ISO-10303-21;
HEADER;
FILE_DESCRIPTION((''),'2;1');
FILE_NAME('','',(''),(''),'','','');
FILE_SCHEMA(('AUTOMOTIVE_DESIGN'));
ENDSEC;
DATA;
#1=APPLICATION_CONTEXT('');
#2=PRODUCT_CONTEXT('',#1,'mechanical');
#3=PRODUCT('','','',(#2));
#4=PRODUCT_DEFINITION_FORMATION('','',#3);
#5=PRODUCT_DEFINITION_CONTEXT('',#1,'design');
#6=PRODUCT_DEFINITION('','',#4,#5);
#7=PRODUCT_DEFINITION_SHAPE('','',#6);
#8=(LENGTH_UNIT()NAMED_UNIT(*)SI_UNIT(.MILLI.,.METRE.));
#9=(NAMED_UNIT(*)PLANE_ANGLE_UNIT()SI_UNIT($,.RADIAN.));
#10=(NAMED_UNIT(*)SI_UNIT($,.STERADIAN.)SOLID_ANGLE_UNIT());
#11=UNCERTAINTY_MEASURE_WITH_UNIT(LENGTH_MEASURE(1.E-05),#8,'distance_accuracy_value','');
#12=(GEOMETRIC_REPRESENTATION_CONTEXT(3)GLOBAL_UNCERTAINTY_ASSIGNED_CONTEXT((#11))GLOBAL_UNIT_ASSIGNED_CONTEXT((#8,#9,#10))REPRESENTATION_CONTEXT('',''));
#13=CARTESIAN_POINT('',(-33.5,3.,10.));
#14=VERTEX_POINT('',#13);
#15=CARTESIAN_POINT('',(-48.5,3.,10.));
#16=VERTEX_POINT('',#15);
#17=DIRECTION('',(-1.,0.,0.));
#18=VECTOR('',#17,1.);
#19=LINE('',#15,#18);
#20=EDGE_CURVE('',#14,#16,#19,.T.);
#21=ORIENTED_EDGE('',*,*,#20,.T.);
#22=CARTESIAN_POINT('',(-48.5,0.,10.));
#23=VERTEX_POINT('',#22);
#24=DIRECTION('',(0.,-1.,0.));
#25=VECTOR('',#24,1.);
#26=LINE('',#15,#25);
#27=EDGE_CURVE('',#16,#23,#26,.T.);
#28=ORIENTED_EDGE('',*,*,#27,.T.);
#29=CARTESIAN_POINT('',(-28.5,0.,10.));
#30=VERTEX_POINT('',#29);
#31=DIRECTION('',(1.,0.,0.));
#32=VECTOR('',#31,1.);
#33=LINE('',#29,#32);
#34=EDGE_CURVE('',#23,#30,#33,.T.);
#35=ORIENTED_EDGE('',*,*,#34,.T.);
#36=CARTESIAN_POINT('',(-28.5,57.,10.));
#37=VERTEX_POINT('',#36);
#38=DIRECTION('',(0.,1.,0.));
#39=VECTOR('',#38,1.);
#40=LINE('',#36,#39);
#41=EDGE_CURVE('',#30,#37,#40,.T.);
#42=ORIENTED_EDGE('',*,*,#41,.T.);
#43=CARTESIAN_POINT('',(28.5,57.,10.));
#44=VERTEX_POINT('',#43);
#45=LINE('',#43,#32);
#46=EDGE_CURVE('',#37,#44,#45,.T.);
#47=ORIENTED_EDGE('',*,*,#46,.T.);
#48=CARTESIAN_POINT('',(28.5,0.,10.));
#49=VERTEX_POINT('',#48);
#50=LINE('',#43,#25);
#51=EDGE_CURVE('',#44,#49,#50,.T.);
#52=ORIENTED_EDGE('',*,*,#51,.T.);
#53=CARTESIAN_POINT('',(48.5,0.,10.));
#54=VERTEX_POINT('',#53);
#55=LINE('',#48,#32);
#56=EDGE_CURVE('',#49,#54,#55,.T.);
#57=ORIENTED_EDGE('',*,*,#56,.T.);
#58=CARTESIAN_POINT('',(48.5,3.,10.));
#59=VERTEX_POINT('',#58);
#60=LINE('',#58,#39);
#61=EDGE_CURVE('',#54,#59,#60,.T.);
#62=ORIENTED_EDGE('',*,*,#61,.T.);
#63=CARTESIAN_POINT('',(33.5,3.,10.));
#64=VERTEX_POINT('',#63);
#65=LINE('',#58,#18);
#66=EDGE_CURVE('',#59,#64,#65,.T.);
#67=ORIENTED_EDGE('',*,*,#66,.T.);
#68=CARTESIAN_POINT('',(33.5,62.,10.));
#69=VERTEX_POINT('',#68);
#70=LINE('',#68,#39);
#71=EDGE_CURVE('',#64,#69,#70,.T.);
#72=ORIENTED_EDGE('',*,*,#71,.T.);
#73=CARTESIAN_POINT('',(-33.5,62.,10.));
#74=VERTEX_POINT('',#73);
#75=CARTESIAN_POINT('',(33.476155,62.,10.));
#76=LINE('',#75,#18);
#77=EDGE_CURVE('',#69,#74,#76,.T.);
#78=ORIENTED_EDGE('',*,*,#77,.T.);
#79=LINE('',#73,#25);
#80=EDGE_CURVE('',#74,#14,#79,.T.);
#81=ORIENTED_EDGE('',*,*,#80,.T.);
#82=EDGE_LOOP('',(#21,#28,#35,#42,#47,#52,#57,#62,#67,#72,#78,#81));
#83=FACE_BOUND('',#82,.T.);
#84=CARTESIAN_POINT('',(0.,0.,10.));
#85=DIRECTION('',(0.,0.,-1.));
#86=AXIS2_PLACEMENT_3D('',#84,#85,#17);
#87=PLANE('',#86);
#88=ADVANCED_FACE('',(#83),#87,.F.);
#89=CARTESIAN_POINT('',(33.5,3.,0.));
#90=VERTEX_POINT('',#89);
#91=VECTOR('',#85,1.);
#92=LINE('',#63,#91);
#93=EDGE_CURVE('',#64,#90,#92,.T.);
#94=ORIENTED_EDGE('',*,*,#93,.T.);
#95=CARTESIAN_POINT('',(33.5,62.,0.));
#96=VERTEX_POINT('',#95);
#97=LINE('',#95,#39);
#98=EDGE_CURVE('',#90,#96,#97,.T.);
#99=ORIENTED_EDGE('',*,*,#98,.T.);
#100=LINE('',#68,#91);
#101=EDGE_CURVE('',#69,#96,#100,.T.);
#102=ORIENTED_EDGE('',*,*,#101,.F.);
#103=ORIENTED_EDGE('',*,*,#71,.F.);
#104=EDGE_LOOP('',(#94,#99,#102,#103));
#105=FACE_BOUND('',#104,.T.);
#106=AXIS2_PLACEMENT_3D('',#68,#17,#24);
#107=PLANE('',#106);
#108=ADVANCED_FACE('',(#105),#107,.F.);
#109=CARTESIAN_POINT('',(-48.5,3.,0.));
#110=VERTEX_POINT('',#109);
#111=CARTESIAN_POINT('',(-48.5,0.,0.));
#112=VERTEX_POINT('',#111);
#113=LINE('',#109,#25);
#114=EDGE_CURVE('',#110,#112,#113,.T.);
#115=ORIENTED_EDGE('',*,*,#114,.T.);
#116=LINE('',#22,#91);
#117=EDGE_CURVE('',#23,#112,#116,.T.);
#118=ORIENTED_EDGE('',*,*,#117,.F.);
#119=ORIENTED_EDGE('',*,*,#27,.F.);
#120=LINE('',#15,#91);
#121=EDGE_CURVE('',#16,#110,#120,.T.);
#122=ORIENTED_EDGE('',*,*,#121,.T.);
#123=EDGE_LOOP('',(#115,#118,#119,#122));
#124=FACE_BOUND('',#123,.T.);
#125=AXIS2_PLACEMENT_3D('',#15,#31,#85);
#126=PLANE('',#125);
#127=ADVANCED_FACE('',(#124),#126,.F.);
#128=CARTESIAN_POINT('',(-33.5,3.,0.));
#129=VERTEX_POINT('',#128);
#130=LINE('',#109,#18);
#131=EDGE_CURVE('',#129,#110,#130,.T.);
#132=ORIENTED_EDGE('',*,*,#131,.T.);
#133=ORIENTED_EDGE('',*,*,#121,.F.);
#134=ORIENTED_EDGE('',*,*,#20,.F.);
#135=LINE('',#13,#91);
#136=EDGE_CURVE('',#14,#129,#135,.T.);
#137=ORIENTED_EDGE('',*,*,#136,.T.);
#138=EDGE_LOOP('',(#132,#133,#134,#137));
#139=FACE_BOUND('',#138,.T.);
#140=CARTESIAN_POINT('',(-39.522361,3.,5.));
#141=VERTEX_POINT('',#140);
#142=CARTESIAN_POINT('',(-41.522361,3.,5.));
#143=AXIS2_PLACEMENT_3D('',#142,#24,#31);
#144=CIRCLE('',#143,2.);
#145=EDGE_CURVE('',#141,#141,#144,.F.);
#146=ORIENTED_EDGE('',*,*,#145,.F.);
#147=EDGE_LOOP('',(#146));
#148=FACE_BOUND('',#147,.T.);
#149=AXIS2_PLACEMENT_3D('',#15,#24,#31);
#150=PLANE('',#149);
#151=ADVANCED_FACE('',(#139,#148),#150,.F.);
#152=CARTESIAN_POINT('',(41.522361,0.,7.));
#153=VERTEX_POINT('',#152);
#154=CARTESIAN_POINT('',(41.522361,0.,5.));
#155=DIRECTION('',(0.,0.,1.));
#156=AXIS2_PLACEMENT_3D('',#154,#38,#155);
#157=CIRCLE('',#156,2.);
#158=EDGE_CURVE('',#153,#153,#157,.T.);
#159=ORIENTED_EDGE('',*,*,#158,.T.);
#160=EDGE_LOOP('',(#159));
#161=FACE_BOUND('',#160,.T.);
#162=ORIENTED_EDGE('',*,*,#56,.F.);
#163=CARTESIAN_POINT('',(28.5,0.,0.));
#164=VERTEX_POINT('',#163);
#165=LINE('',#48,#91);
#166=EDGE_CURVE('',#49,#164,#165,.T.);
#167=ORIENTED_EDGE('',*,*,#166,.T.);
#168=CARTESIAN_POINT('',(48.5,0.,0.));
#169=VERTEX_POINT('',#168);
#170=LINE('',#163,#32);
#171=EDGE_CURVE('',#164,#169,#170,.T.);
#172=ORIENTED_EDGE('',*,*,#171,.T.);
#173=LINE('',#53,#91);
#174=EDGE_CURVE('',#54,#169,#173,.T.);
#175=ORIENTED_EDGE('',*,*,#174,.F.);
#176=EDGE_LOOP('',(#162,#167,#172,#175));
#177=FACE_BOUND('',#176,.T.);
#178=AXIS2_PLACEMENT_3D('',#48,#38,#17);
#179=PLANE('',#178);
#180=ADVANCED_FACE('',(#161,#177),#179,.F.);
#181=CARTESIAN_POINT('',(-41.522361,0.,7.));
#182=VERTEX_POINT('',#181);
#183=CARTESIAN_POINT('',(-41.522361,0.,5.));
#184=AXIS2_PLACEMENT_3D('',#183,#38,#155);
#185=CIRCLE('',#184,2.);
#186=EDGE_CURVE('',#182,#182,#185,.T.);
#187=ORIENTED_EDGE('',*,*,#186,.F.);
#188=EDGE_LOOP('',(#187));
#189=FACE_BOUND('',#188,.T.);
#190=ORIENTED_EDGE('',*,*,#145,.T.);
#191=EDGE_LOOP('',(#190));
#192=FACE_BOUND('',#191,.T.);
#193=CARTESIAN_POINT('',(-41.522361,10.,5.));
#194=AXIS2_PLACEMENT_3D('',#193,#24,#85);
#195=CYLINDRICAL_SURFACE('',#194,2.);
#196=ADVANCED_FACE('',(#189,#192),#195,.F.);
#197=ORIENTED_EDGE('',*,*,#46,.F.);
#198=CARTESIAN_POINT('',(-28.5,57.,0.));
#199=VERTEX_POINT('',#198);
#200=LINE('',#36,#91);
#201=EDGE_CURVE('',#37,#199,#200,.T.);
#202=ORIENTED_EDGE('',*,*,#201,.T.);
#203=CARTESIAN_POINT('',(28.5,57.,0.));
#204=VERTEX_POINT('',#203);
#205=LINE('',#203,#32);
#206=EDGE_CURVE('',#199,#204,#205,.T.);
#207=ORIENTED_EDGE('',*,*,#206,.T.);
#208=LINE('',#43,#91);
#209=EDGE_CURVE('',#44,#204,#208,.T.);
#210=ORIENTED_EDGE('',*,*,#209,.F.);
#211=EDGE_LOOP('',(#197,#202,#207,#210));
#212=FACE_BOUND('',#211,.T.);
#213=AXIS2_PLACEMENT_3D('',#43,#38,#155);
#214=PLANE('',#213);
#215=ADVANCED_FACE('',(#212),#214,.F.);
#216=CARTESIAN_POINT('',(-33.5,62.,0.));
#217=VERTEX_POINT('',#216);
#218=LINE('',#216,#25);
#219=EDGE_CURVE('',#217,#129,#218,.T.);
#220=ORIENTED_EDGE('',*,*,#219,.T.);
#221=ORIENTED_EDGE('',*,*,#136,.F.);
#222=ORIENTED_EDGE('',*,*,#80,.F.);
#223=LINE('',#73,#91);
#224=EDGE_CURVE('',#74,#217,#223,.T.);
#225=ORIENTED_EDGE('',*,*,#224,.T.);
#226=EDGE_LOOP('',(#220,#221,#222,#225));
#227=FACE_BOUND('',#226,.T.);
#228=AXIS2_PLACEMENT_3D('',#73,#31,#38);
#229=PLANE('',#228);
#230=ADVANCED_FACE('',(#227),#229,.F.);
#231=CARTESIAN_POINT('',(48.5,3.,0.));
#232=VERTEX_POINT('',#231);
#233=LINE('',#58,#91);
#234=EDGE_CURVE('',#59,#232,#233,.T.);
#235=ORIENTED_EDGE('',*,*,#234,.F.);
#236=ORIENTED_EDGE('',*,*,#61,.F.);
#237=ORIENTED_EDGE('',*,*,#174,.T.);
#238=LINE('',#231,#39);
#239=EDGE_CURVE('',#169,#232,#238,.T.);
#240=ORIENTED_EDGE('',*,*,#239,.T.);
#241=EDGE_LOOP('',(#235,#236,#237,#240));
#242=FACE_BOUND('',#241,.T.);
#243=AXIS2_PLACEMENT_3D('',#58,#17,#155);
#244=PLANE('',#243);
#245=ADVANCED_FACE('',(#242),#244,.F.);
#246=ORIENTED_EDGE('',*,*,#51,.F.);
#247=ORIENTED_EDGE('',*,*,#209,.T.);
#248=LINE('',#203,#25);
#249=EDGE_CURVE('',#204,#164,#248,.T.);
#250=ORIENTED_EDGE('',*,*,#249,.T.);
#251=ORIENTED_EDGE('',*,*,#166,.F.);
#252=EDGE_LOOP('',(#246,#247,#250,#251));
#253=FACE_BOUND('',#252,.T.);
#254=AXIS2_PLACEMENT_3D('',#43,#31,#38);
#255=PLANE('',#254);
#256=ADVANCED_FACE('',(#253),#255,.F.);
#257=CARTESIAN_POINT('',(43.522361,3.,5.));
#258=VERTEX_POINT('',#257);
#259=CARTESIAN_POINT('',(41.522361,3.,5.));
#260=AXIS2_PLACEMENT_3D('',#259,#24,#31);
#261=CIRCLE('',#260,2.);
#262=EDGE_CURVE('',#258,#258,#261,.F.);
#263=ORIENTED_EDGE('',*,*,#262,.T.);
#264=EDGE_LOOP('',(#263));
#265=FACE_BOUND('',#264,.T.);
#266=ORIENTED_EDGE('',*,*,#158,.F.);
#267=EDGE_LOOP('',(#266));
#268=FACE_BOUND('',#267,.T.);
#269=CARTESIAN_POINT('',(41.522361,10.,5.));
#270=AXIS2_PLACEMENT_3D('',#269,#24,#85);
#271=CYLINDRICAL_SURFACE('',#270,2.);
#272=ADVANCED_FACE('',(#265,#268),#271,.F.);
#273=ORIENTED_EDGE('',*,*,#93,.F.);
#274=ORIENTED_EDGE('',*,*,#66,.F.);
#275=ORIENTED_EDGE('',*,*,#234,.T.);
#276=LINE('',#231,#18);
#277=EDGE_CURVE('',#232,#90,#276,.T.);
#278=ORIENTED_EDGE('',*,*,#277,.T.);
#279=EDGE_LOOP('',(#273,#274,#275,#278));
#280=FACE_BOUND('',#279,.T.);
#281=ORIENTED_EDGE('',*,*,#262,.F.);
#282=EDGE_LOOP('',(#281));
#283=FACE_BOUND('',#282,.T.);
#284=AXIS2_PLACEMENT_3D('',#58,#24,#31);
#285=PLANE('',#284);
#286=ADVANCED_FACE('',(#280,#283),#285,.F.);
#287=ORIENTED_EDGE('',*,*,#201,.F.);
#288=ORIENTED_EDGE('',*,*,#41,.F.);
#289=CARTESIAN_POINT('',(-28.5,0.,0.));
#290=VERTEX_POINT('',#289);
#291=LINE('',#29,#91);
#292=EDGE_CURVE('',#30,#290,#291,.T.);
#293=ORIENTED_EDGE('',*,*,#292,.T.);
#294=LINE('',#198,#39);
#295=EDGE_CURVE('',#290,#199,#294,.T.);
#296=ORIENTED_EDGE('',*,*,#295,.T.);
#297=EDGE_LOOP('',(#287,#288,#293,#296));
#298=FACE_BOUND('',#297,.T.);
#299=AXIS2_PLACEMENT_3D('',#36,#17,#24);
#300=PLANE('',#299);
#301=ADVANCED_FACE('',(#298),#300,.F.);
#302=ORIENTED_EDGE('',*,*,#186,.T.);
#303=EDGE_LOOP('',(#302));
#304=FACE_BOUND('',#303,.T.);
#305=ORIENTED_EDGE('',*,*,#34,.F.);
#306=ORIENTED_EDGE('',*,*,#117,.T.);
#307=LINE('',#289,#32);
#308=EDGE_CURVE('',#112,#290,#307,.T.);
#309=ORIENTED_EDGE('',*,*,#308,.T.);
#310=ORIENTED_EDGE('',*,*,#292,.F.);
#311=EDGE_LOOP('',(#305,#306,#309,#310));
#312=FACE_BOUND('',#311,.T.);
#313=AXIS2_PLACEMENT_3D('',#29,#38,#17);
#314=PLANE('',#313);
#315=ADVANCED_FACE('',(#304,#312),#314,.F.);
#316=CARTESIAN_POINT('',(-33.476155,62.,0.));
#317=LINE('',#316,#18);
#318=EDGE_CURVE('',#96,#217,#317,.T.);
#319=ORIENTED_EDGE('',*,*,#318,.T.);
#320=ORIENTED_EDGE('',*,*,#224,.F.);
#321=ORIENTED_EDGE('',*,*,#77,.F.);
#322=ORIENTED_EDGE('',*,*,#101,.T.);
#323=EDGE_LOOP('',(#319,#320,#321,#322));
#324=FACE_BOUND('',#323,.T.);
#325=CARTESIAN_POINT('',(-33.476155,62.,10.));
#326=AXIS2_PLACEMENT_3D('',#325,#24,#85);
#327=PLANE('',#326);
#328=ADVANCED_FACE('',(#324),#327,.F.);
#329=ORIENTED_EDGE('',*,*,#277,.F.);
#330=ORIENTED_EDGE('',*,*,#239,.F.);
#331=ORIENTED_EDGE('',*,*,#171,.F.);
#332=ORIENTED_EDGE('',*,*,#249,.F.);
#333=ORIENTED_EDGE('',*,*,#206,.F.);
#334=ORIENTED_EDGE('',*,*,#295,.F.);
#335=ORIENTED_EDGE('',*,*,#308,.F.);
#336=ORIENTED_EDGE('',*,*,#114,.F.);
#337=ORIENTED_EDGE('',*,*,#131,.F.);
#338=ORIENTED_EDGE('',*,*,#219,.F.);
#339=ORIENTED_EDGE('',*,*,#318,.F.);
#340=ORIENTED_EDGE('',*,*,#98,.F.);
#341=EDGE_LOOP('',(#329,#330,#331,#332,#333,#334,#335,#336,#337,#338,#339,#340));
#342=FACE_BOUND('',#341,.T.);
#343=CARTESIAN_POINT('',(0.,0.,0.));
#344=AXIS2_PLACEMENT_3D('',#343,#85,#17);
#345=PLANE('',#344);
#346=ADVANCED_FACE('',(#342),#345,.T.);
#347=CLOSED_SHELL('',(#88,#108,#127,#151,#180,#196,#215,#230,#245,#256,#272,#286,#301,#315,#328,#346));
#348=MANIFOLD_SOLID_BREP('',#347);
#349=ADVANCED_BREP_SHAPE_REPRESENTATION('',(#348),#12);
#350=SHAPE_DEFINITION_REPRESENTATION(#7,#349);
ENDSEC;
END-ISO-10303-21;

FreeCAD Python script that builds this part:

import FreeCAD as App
import Part
import Sketcher

doc = App.newDocument("Part")
params = doc.addObject("Spreadsheet::Sheet", "Params")
for row, (alias, value) in enumerate([
    ("sketch1_width", "15 mm"),
    ("sketch1_width2", "20 mm"),
    ("sketch1_width3", "57 mm"),
    ("sketch1_height", "59 mm"),
    ("sketch1_height2", "3 mm"),
    ("pad1_length", "10 mm"),
    ("sketch2_diameter", "4 mm"),
    ("pocket1_length", "10 mm"),
], start=1):
    params.set(f"A{row}", alias)
    params.set(f"B{row}", "=" + value)
    params.setAlias(f"B{row}", alias)

body = doc.addObject("PartDesign::Body", "Body")

# Sketch on XY plane
sketch1 = body.newObject("Sketcher::SketchObject", "Sketch")
sketch1.AttachmentSupport = (doc.getObject("XY_Plane"), [""])
sketch1.MapMode = "FlatFace"
sketch1.addGeometry(Part.LineSegment(App.Vector(-33.5, 62, 0), App.Vector(-33.5, 3, 0)), False)
sketch1.addGeometry(Part.LineSegment(App.Vector(-33.5, 3, 0), App.Vector(-48.5, 3, 0)), False)
sketch1.addGeometry(Part.LineSegment(App.Vector(-48.5, 3, 0), App.Vector(-48.5, 0, 0)), False)
sketch1.addGeometry(Part.LineSegment(App.Vector(-48.5, 0, 0), App.Vector(-28.5, 0, 0)), False)
sketch1.addGeometry(Part.LineSegment(App.Vector(-28.5, 0, 0), App.Vector(-28.5, 57, 0)), False)
sketch1.addGeometry(Part.LineSegment(App.Vector(-28.5, 57, 0), App.Vector(28.5, 57, 0)), False)
sketch1.addGeometry(Part.LineSegment(App.Vector(28.5, 57, 0), App.Vector(28.5, 0, 0)), False)
sketch1.addGeometry(Part.LineSegment(App.Vector(28.5, 0, 0), App.Vector(48.5, 0, 0)), False)
sketch1.addGeometry(Part.LineSegment(App.Vector(48.5, 0, 0), App.Vector(48.5, 3, 0)), False)
sketch1.addGeometry(Part.LineSegment(App.Vector(48.5, 3, 0), App.Vector(33.5, 3, 0)), False)
sketch1.addGeometry(Part.LineSegment(App.Vector(33.5, 3, 0), App.Vector(33.5, 62, 0)), False)
sketch1.addGeometry(Part.LineSegment(App.Vector(33.5, 62, 0), App.Vector(-33.5, 62, 0)), False)
sketch1.addConstraint(Sketcher.Constraint("Coincident", 0, 2, 1, 1))
sketch1.addConstraint(Sketcher.Constraint("Coincident", 1, 2, 2, 1))
sketch1.addConstraint(Sketcher.Constraint("Coincident", 2, 2, 3, 1))
sketch1.addConstraint(Sketcher.Constraint("Coincident", 3, 2, 4, 1))
sketch1.addConstraint(Sketcher.Constraint("Coincident", 4, 2, 5, 1))
sketch1.addConstraint(Sketcher.Constraint("Coincident", 5, 2, 6, 1))
sketch1.addConstraint(Sketcher.Constraint("Coincident", 6, 2, 7, 1))
sketch1.addConstraint(Sketcher.Constraint("Coincident", 7, 2, 8, 1))
sketch1.addConstraint(Sketcher.Constraint("Coincident", 8, 2, 9, 1))
sketch1.addConstraint(Sketcher.Constraint("Coincident", 9, 2, 10, 1))
sketch1.addConstraint(Sketcher.Constraint("Coincident", 10, 2, 11, 1))
sketch1.addConstraint(Sketcher.Constraint("Coincident", 11, 2, 0, 1))
sketch1.addConstraint(Sketcher.Constraint("Vertical", 0))
sketch1.addConstraint(Sketcher.Constraint("Horizontal", 1))
sketch1.addConstraint(Sketcher.Constraint("Vertical", 2))
sketch1.addConstraint(Sketcher.Constraint("Horizontal", 3))
sketch1.addConstraint(Sketcher.Constraint("Vertical", 4))
sketch1.addConstraint(Sketcher.Constraint("Horizontal", 5))
sketch1.addConstraint(Sketcher.Constraint("Vertical", 6))
sketch1.addConstraint(Sketcher.Constraint("Horizontal", 7))
sketch1.addConstraint(Sketcher.Constraint("Vertical", 8))
sketch1.addConstraint(Sketcher.Constraint("Horizontal", 9))
sketch1.addConstraint(Sketcher.Constraint("Vertical", 10))
sketch1.addConstraint(Sketcher.Constraint("Horizontal", 11))
sketch1.addConstraint(Sketcher.Constraint("Symmetric", 3, 2, 6, 2, -1, 1))
sketch1.addConstraint(Sketcher.Constraint("Symmetric", 2, 2, 7, 2, -2))
sketch1.addConstraint(Sketcher.Constraint("Symmetric", 0, 2, 9, 2, -2))
sketch1.addConstraint(Sketcher.Constraint("Equal", 5, 4))
sketch1.addConstraint(Sketcher.Constraint("DistanceX", 1, 2, 1, 1, 15.0))
sketch1.addConstraint(Sketcher.Constraint("DistanceX", 3, 1, 3, 2, 20.0))
sketch1.addConstraint(Sketcher.Constraint("DistanceX", 5, 1, 5, 2, 57.0))
sketch1.addConstraint(Sketcher.Constraint("DistanceY", 0, 2, 0, 1, 59.0))
sketch1.addConstraint(Sketcher.Constraint("DistanceY", 2, 2, 2, 1, 3.0))
sketch1.setExpression("Constraints[28]", "Params.sketch1_width")
sketch1.setExpression("Constraints[29]", "Params.sketch1_width2")
sketch1.setExpression("Constraints[30]", "Params.sketch1_width3")
sketch1.setExpression("Constraints[31]", "Params.sketch1_height")
sketch1.setExpression("Constraints[32]", "Params.sketch1_height2")
pad1 = body.newObject("PartDesign::Pad", "Pad")
pad1.Profile = sketch1
pad1.setExpression("Length", "Params.pad1_length")

# Sketch on XZ plane
sketch2 = body.newObject("Sketcher::SketchObject", "Sketch001")
sketch2.AttachmentSupport = (doc.getObject("XZ_Plane"), [""])
sketch2.MapMode = "FlatFace"
sketch2.addGeometry(Part.Circle(App.Vector(-41.5, 5, 0), App.Vector(0, 0, 1), 2), False)
sketch2.addGeometry(Part.Circle(App.Vector(41.5, 5, 0), App.Vector(0, 0, 1), 2), False)
sketch2.addConstraint(Sketcher.Constraint("Equal", 0, 1))
sketch2.addConstraint(Sketcher.Constraint("Symmetric", 0, 3, 1, 3, -2))
sketch2.addConstraint(Sketcher.Constraint("Diameter", 0, 4.0))
sketch2.addConstraint(Sketcher.Constraint("DistanceY", -1, 1, 0, 3, 5.0))
sketch2.addConstraint(Sketcher.Constraint("DistanceX", 0, 3, -1, 1, 41.522361))
sketch2.setExpression("Constraints[2]", "Params.sketch2_diameter")
pocket1 = body.newObject("PartDesign::Pocket", "Pocket")
pocket1.Profile = sketch2
pocket1.setExpression("Length", "Params.pocket1_length")

doc.recompute()
